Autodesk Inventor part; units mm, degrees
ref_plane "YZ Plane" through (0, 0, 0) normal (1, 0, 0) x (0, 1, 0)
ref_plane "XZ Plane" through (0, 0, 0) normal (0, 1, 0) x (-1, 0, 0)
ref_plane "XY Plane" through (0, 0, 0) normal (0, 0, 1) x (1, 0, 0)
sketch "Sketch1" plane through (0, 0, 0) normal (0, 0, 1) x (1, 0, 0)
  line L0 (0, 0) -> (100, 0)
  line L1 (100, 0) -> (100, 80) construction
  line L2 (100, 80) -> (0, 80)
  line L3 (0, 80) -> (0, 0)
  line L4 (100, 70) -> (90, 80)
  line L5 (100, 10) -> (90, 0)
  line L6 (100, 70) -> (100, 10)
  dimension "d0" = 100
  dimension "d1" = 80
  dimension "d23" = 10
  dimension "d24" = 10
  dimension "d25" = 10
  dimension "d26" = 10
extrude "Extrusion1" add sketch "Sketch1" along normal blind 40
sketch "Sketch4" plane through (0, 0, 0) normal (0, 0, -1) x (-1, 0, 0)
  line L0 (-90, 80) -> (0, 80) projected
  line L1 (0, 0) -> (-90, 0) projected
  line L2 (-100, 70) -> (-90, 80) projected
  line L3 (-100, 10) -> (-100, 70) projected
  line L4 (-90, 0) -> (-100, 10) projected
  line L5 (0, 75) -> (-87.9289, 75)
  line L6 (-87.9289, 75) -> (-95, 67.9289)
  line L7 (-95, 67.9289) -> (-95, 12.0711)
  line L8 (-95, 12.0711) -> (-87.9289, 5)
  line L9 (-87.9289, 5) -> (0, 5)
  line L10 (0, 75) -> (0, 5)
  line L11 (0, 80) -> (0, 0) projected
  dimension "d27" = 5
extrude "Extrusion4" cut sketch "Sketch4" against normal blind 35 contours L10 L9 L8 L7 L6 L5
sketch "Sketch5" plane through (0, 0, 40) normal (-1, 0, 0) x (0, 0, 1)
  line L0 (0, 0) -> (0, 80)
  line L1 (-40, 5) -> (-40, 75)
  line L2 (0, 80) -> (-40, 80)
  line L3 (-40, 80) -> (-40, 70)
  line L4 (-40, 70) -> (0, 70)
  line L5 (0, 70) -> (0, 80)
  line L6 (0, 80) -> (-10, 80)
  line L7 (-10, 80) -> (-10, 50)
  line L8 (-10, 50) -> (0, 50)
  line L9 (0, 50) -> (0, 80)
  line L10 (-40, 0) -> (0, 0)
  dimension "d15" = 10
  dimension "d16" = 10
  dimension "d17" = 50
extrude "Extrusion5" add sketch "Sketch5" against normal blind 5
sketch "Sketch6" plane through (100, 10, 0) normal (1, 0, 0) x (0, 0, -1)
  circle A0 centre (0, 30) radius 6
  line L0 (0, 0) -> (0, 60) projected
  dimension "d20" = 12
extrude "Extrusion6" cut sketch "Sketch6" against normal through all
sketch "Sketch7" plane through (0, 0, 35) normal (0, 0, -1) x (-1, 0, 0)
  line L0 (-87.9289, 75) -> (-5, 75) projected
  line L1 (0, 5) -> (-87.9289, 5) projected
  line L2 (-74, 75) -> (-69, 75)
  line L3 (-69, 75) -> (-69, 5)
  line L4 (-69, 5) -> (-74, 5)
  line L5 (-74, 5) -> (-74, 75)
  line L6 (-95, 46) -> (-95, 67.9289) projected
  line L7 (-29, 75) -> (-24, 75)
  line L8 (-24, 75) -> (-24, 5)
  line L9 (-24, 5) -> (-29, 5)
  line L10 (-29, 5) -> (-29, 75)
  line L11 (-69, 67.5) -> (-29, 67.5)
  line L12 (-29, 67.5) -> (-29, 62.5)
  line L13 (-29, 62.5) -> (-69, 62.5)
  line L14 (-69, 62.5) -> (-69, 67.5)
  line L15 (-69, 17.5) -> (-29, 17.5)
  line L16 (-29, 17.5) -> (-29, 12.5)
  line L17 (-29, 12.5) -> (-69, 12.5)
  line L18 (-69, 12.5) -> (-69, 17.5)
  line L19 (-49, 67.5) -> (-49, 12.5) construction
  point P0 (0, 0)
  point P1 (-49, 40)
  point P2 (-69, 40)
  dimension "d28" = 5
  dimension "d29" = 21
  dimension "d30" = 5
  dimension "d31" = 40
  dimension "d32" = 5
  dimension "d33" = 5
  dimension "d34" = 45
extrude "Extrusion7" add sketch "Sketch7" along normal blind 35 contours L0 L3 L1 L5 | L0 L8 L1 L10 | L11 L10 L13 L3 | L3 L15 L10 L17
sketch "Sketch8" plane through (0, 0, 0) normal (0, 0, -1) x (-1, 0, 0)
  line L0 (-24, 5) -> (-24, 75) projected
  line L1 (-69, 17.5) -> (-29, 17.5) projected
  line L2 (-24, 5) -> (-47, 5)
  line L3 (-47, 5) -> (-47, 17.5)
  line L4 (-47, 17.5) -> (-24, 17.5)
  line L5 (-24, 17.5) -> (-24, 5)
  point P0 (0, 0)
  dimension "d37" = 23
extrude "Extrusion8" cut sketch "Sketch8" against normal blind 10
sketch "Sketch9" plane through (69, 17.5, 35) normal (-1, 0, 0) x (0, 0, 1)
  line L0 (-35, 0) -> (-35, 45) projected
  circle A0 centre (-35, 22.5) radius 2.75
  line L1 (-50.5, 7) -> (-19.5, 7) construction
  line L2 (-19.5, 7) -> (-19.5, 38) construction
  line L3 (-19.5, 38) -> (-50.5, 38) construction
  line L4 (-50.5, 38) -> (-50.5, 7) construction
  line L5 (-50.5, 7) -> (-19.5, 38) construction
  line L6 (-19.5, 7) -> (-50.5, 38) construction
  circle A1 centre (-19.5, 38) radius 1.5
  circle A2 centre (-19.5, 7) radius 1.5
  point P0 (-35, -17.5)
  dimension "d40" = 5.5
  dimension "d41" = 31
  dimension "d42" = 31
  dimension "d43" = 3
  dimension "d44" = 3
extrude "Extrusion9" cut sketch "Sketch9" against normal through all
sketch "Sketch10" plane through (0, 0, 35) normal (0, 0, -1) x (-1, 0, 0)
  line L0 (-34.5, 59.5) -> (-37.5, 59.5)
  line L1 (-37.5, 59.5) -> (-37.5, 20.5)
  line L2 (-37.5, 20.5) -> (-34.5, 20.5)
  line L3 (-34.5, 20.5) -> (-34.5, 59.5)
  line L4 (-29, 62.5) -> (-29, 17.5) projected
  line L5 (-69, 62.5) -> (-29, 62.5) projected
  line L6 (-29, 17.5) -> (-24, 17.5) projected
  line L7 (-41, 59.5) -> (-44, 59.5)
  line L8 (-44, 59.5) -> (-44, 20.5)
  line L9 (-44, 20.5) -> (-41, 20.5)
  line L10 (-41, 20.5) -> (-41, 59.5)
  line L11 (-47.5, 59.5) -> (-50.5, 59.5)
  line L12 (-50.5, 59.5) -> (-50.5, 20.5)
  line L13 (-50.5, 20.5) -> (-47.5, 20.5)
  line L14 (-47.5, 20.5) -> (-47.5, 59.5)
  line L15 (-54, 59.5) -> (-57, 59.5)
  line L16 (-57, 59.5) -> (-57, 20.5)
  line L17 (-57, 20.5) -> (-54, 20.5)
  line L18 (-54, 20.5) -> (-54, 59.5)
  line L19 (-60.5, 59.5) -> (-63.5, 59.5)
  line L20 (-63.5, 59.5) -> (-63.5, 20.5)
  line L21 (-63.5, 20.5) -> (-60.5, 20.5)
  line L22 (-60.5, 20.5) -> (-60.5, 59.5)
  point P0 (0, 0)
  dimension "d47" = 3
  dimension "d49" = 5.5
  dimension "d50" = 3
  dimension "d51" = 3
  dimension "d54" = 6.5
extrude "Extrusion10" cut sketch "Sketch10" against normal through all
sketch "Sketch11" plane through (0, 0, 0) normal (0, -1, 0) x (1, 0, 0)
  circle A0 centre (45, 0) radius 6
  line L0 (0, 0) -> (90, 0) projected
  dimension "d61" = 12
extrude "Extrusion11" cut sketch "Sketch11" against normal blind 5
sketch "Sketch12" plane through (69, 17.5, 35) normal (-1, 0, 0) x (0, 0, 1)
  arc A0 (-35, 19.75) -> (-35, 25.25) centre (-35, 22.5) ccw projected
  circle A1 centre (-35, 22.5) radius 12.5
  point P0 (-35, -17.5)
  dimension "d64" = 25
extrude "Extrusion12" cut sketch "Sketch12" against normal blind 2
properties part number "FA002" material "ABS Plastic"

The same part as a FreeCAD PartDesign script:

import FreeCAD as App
import Part
import Sketcher

V = App.Vector
Q = App.Units.Quantity

doc = App.newDocument("Part")
params = doc.addObject("Spreadsheet::Sheet", "Params")
for row, (alias, value) in enumerate([
    ("sketch1_height", "80 mm"),
    ("pad1_length", "40 mm"),
    ("sketch2_height", "70 mm"),
    ("sketch2_length", "10 mm"),
    ("pocket1_length", "35 mm"),
    ("sketch3_width", "10 mm"),
    ("sketch3_width2", "30 mm"),
    ("pad2_length", "5 mm"),
    ("sketch4_diameter", "12 mm"),
    ("sketch5_width", "5 mm"),
    ("sketch5_width2", "40 mm"),
    ("sketch5_height", "45 mm"),
    ("sketch5_height2", "70 mm"),
    ("pad3_length", "35 mm"),
    ("sketch6_width", "23 mm"),
    ("sketch6_height", "12.5 mm"),
    ("pocket3_length", "10 mm"),
    ("sketch7_diameter", "3 mm"),
    ("sketch7_diameter2", "5.5 mm"),
    ("sketch8_width", "3 mm"),
    ("sketch8_height", "39 mm"),
    ("sketch9_diameter", "12 mm"),
    ("pocket6_length", "5 mm"),
    ("sketch10_diameter", "25 mm"),
    ("pocket7_length", "2 mm"),
], start=1):
    params.set(f"A{row}", alias)
    params.set(f"B{row}", "=" + value)
    params.setAlias(f"B{row}", alias)

body = doc.addObject("PartDesign::Body", "Body")

sketch1 = body.newObject("Sketcher::SketchObject", "Sketch")
sketch1.AttachmentSupport = (doc.getObject("XY_Plane"), [""])
sketch1.MapMode = "FlatFace"
sketch1.addGeometry([
    Part.LineSegment(V(0, 80, 0), V(0, 0, 0)),
    Part.LineSegment(V(0, 0, 0), V(90, 0, 0)),
    Part.LineSegment(V(90, 0, 0), V(100, 10, 0)),
    Part.LineSegment(V(100, 10, 0), V(100, 70, 0)),
    Part.LineSegment(V(100, 70, 0), V(90, 80, 0)),
    Part.LineSegment(V(90, 80, 0), V(0, 80, 0)),
], False)
sketch1.addConstraint([
    Sketcher.Constraint("Coincident", 0, 2, 1, 1),
    Sketcher.Constraint("Coincident", 1, 2, 2, 1),
    Sketcher.Constraint("Coincident", 2, 2, 3, 1),
    Sketcher.Constraint("Coincident", 3, 2, 4, 1),
    Sketcher.Constraint("Coincident", 4, 2, 5, 1),
    Sketcher.Constraint("Coincident", 5, 2, 0, 1),
    Sketcher.Constraint("Vertical", 0),
    Sketcher.Constraint("Horizontal", 1),
    Sketcher.Constraint("Vertical", 3),
    Sketcher.Constraint("Horizontal", 5),
    Sketcher.Constraint("Coincident", 0, 2, -1, 1),
    Sketcher.Constraint("Perpendicular", 2, 4),
    Sketcher.Constraint("Vertical", 1, 2, 4, 2),
    Sketcher.Constraint("Equal", 2, 4),
    Sketcher.Constraint("DistanceY", 0, 2, 0, 1, Q("80 mm")),
    Sketcher.Constraint("DistanceX", -1, 1, 2, 2, Q("100 mm")),
    Sketcher.Constraint("DistanceY", -1, 1, 2, 2, Q("10 mm")),
])
sketch1.setExpression("Constraints[14]", "Params.sketch1_height")
pad1 = body.newObject("PartDesign::Pad", "Pad")
pad1.Profile = sketch1
pad1.setExpression("Length", "Params.pad1_length")

sketch2 = body.newObject("Sketcher::SketchObject", "Sketch001")
sketch2.AttachmentSupport = (doc.getObject("XY_Plane"), [""])
sketch2.MapMode = "FlatFace"
sketch2.addGeometry([
    Part.LineSegment(V(0, 5, 0), V(0, 75, 0)),
    Part.LineSegment(V(0, 75, 0), V(87.9289, 75, 0)),
    Part.LineSegment(V(87.9289, 75, 0), V(95, 67.9289, 0)),
    Part.LineSegment(V(95, 67.9289, 0), V(95, 12.0711, 0)),
    Part.LineSegment(V(95, 12.0711, 0), V(87.9289, 5, 0)),
    Part.LineSegment(V(87.9289, 5, 0), V(0, 5, 0)),
], False)
sketch2.addConstraint([
    Sketcher.Constraint("Coincident", 0, 2, 1, 1),
    Sketcher.Constraint("Coincident", 1, 2, 2, 1),
    Sketcher.Constraint("Coincident", 2, 2, 3, 1),
    Sketcher.Constraint("Coincident", 3, 2, 4, 1),
    Sketcher.Constraint("Coincident", 4, 2, 5, 1),
    Sketcher.Constraint("Coincident", 5, 2, 0, 1),
    Sketcher.Constraint("Vertical", 0),
    Sketcher.Constraint("Horizontal", 1),
    Sketcher.Constraint("Vertical", 3),
    Sketcher.Constraint("Horizontal", 5),
    Sketcher.Constraint("PointOnObject", 0, 2, -2),
    Sketcher.Constraint("Perpendicular", 2, 4),
    Sketcher.Constraint("Vertical", 1, 2, 4, 2),
    Sketcher.Constraint("Equal", 2, 4),
    Sketcher.Constraint("DistanceY", -1, 1, 4, 2, Q("5 mm")),
    Sketcher.Constraint("DistanceY", 0, 1, 0, 2, Q("70 mm")),
    Sketcher.Constraint("Distance", 2, Q("10 mm")),
    Sketcher.Constraint("DistanceX", -1, 1, 2, 2, Q("95 mm")),
])
sketch2.setExpression("Constraints[15]", "Params.sketch2_height")
sketch2.setExpression("Constraints[16]", "Params.sketch2_length")
pocket1 = body.newObject("PartDesign::Pocket", "Pocket")
pocket1.Profile = sketch2
pocket1.setExpression("Length", "Params.pocket1_length")
pocket1.Reversed = True

sketch3 = body.newObject("Sketcher::SketchObject", "Sketch002")
sketch3.AttachmentSupport = (doc.getObject("YZ_Plane"), [""])
sketch3.MapMode = "FlatFace"
sketch3.addGeometry([
    Part.LineSegment(V(50, 30, 0), V(50, 40, 0)),
    Part.LineSegment(V(50, 40, 0), V(80, 40, 0)),
    Part.LineSegment(V(80, 40, 0), V(80, 0, 0)),
    Part.LineSegment(V(80, 0, 0), V(70, 0, 0)),
    Part.LineSegment(V(70, 0, 0), V(70, 30, 0)),
    Part.LineSegment(V(70, 30, 0), V(50, 30, 0)),
], False)
sketch3.addConstraint([
    Sketcher.Constraint("Coincident", 0, 2, 1, 1),
    Sketcher.Constraint("Coincident", 1, 2, 2, 1),
    Sketcher.Constraint("Coincident", 2, 2, 3, 1),
    Sketcher.Constraint("Coincident", 3, 2, 4, 1),
    Sketcher.Constraint("Coincident", 4, 2, 5, 1),
    Sketcher.Constraint("Coincident", 5, 2, 0, 1),
    Sketcher.Constraint("Vertical", 0),
    Sketcher.Constraint("Horizontal", 1),
    Sketcher.Constraint("Vertical", 2),
    Sketcher.Constraint("Horizontal", 3),
    Sketcher.Constraint("Vertical", 4),
    Sketcher.Constraint("Horizontal", 5),
    Sketcher.Constraint("PointOnObject", 2, 2, -1),
    Sketcher.Constraint("Equal", 3, 0),
    Sketcher.Constraint("Equal", 1, 4),
    Sketcher.Constraint("DistanceX", 3, 2, 3, 1, Q("10 mm")),
    Sketcher.Constraint("DistanceX", -1, 1, 0, 2, Q("50 mm")),
    Sketcher.Constraint("DistanceX", 1, 1, 1, 2, Q("30 mm")),
])
sketch3.setExpression("Constraints[15]", "Params.sketch3_width")
sketch3.setExpression("Constraints[17]", "Params.sketch3_width2")
pad2 = body.newObject("PartDesign::Pad", "Pad001")
pad2.Profile = sketch3
pad2.setExpression("Length", "Params.pad2_length")

sketch4 = body.newObject("Sketcher::SketchObject", "Sketch003")
sketch4.AttachmentSupport = (doc.getObject("YZ_Plane"), [""])
sketch4.MapMode = "FlatFace"
sketch4.AttachmentOffset = App.Placement(V(0, 0, 100), App.Rotation())
sketch4.addGeometry(Part.Circle(V(40, 0, 0), V(0, 0, 1), 6), False)
sketch4.addConstraint([
    Sketcher.Constraint("PointOnObject", 0, 3, -1),
    Sketcher.Constraint("Diameter", 0, Q("12 mm")),
    Sketcher.Constraint("DistanceX", -1, 1, 0, 3, Q("40 mm")),
])
sketch4.setExpression("Constraints[1]", "Params.sketch4_diameter")
pocket2 = body.newObject("PartDesign::Pocket", "Pocket001")
pocket2.Profile = sketch4
pocket2.Type = "ThroughAll"

sketch5 = body.newObject("Sketcher::SketchObject", "Sketch004")
sketch5.AttachmentSupport = (doc.getObject("XY_Plane"), [""])
sketch5.MapMode = "FlatFace"
sketch5.AttachmentOffset = App.Placement(V(0, 0, 35), App.Rotation())
sketch5.addGeometry([
    Part.LineSegment(V(69, 75, 0), V(74, 75, 0)),
    Part.LineSegment(V(74, 75, 0), V(74, 5, 0)),
    Part.LineSegment(V(74, 5, 0), V(69, 5, 0)),
    Part.LineSegment(V(69, 5, 0), V(69, 12.5, 0)),
    Part.LineSegment(V(69, 12.5, 0), V(29, 12.5, 0)),
    Part.LineSegment(V(29, 12.5, 0), V(29, 5, 0)),
    Part.LineSegment(V(29, 5, 0), V(24, 5, 0)),
    Part.LineSegment(V(24, 5, 0), V(24, 75, 0)),
    Part.LineSegment(V(24, 75, 0), V(29, 75, 0)),
    Part.LineSegment(V(29, 75, 0), V(29, 67.5, 0)),
    Part.LineSegment(V(29, 67.5, 0), V(69, 67.5, 0)),
    Part.LineSegment(V(69, 67.5, 0), V(69, 75, 0)),
    Part.LineSegment(V(69, 17.5, 0), V(69, 62.5, 0)),
    Part.LineSegment(V(69, 62.5, 0), V(29, 62.5, 0)),
    Part.LineSegment(V(29, 62.5, 0), V(29, 17.5, 0)),
    Part.LineSegment(V(29, 17.5, 0), V(69, 17.5, 0)),
], False)
sketch5.addConstraint([
    Sketcher.Constraint("Coincident", 0, 2, 1, 1),
    Sketcher.Constraint("Coincident", 1, 2, 2, 1),
    Sketcher.Constraint("Coincident", 2, 2, 3, 1),
    Sketcher.Constraint("Coincident", 3, 2, 4, 1),
    Sketcher.Constraint("Coincident", 4, 2, 5, 1),
    Sketcher.Constraint("Coincident", 5, 2, 6, 1),
    Sketcher.Constraint("Coincident", 6, 2, 7, 1),
    Sketcher.Constraint("Coincident", 7, 2, 8, 1),
    Sketcher.Constraint("Coincident", 8, 2, 9, 1),
    Sketcher.Constraint("Coincident", 9, 2, 10, 1),
    Sketcher.Constraint("Coincident", 10, 2, 11, 1),
    Sketcher.Constraint("Coincident", 11, 2, 0, 1),
    Sketcher.Constraint("Coincident", 12, 2, 13, 1),
    Sketcher.Constraint("Coincident", 13, 2, 14, 1),
    Sketcher.Constraint("Coincident", 14, 2, 15, 1),
    Sketcher.Constraint("Coincident", 15, 2, 12, 1),
    Sketcher.Constraint("Horizontal", 0),
    Sketcher.Constraint("Vertical", 1),
    Sketcher.Constraint("Horizontal", 2),
    Sketcher.Constraint("Vertical", 3),
    Sketcher.Constraint("Horizontal", 4),
    Sketcher.Constraint("Vertical", 5),
    Sketcher.Constraint("Horizontal", 6),
    Sketcher.Constraint("Vertical", 7),
    Sketcher.Constraint("Horizontal", 8),
    Sketcher.Constraint("Vertical", 9),
    Sketcher.Constraint("Horizontal", 10),
    Sketcher.Constraint("Vertical", 11),
    Sketcher.Constraint("Vertical", 12),
    Sketcher.Constraint("Horizontal", 13),
    Sketcher.Constraint("Vertical", 14),
    Sketcher.Constraint("Horizontal", 15),
    Sketcher.Constraint("Horizontal", 2, 2, 5, 2),
    Sketcher.Constraint("Horizontal", 0, 2, 7, 2),
    Sketcher.Constraint("Vertical", 5, 2, 8, 2),
    Sketcher.Constraint("Vertical", 3, 2, 10, 2),
    Sketcher.Constraint("Vertical", 11, 2, 12, 2),
    Sketcher.Constraint("Vertical", 9, 2, 13, 2),
    Sketcher.Constraint("Equal", 2, 6),
    Sketcher.Constraint("Equal", 5, 9),
    Sketcher.Constraint("DistanceX", 0, 1, 0, 2, Q("5 mm")),
    Sketcher.Constraint("DistanceX", 4, 2, 4, 1, Q("40 mm")),
    Sketcher.Constraint("DistanceY", 12, 1, 12, 2, Q("45 mm")),
    Sketcher.Constraint("DistanceY", -1, 1, 1, 2, Q("5 mm")),
    Sketcher.Constraint("DistanceY", 12, 2, 10, 2, Q("5 mm")),
    Sketcher.Constraint("DistanceY", 4, 2, 14, 2, Q("5 mm")),
    Sketcher.Constraint("DistanceY", 1, 2, 1, 1, Q("70 mm")),
    Sketcher.Constraint("DistanceX", -1, 1, 0, 2, Q("74 mm")),
])
sketch5.setExpression("Constraints[40]", "Params.sketch5_width")
sketch5.setExpression("Constraints[41]", "Params.sketch5_width2")
sketch5.setExpression("Constraints[42]", "Params.sketch5_height")
sketch5.setExpression("Constraints[46]", "Params.sketch5_height2")
pad3 = body.newObject("PartDesign::Pad", "Pad002")
pad3.Profile = sketch5
pad3.setExpression("Length", "Params.pad3_length")
pad3.Reversed = True

sketch6 = body.newObject("Sketcher::SketchObject", "Sketch005")
sketch6.AttachmentSupport = (doc.getObject("XY_Plane"), [""])
sketch6.MapMode = "FlatFace"
sketch6.addGeometry([
    Part.LineSegment(V(47, 5, 0), V(24, 5, 0)),
    Part.LineSegment(V(24, 5, 0), V(24, 17.5, 0)),
    Part.LineSegment(V(24, 17.5, 0), V(47, 17.5, 0)),
    Part.LineSegment(V(47, 17.5, 0), V(47, 5, 0)),
], False)
sketch6.addConstraint([
    Sketcher.Constraint("Coincident", 0, 2, 1, 1),
    Sketcher.Constraint("Coincident", 1, 2, 2, 1),
    Sketcher.Constraint("Coincident", 2, 2, 3, 1),
    Sketcher.Constraint("Coincident", 3, 2, 0, 1),
    Sketcher.Constraint("Horizontal", 0),
    Sketcher.Constraint("Vertical", 1),
    Sketcher.Constraint("Horizontal", 2),
    Sketcher.Constraint("Vertical", 3),
    Sketcher.Constraint("DistanceX", 0, 2, 0, 1, Q("23 mm")),
    Sketcher.Constraint("DistanceY", 1, 1, 1, 2, Q("12.5 mm")),
    Sketcher.Constraint("DistanceX", -1, 1, 0, 2, Q("24 mm")),
    Sketcher.Constraint("DistanceY", -1, 1, 0, 2, Q("5 mm")),
])
sketch6.setExpression("Constraints[8]", "Params.sketch6_width")
sketch6.setExpression("Constraints[9]", "Params.sketch6_height")
pocket3 = body.newObject("PartDesign::Pocket", "Pocket002")
pocket3.Profile = sketch6
pocket3.setExpression("Length", "Params.pocket3_length")
pocket3.Reversed = True

sketch7 = body.newObject("Sketcher::SketchObject", "Sketch006")
sketch7.AttachmentSupport = (doc.getObject("YZ_Plane"), [""])
sketch7.MapMode = "FlatFace"
sketch7.AttachmentOffset = App.Placement(V(0, 0, 69), App.Rotation())
sketch7.addGeometry([
    Part.Circle(V(40, 0, 0), V(0, 0, 1), 2.75),
    Part.Circle(V(55.5, 15.5, 0), V(0, 0, 1), 1.5),
    Part.Circle(V(24.5, 15.5, 0), V(0, 0, 1), 1.5),
], False)
sketch7.addConstraint([
    Sketcher.Constraint("Equal", 1, 2),
    Sketcher.Constraint("PointOnObject", 0, 3, -1),
    Sketcher.Constraint("Horizontal", 1, 3, 2, 3),
    Sketcher.Constraint("Diameter", 1, Q("3 mm")),
    Sketcher.Constraint("Diameter", 0, Q("5.5 mm")),
    Sketcher.Constraint("DistanceX", 2, 3, 1, 3, Q("31 mm")),
    Sketcher.Constraint("DistanceX", -1, 1, 0, 3, Q("40 mm")),
    Sketcher.Constraint("DistanceX", -1, 1, 1, 3, Q("55.5 mm")),
    Sketcher.Constraint("DistanceY", -1, 1, 1, 3, Q("15.5 mm")),
])
sketch7.setExpression("Constraints[3]", "Params.sketch7_diameter")
sketch7.setExpression("Constraints[4]", "Params.sketch7_diameter2")
pocket4 = body.newObject("PartDesign::Pocket", "Pocket003")
pocket4.Profile = sketch7
pocket4.Type = "ThroughAll"
pocket4.Reversed = True

sketch8 = body.newObject("Sketcher::SketchObject", "Sketch007")
sketch8.AttachmentSupport = (doc.getObject("XY_Plane"), [""])
sketch8.MapMode = "FlatFace"
sketch8.AttachmentOffset = App.Placement(V(0, 0, 35), App.Rotation())
sketch8.addGeometry([
    Part.LineSegment(V(34.5, 20.5, 0), V(34.5, 59.5, 0)),
    Part.LineSegment(V(34.5, 59.5, 0), V(37.5, 59.5, 0)),
    Part.LineSegment(V(37.5, 59.5, 0), V(37.5, 20.5, 0)),
    Part.LineSegment(V(37.5, 20.5, 0), V(34.5, 20.5, 0)),
    Part.LineSegment(V(41, 20.5, 0), V(41, 59.5, 0)),
    Part.LineSegment(V(41, 59.5, 0), V(44, 59.5, 0)),
    Part.LineSegment(V(44, 59.5, 0), V(44, 20.5, 0)),
    Part.LineSegment(V(44, 20.5, 0), V(41, 20.5, 0)),
    Part.LineSegment(V(47.5, 20.5, 0), V(47.5, 59.5, 0)),
    Part.LineSegment(V(47.5, 59.5, 0), V(50.5, 59.5, 0)),
    Part.LineSegment(V(50.5, 59.5, 0), V(50.5, 20.5, 0)),
    Part.LineSegment(V(50.5, 20.5, 0), V(47.5, 20.5, 0)),
    Part.LineSegment(V(54, 20.5, 0), V(54, 59.5, 0)),
    Part.LineSegment(V(54, 59.5, 0), V(57, 59.5, 0)),
    Part.LineSegment(V(57, 59.5, 0), V(57, 20.5, 0)),
    Part.LineSegment(V(57, 20.5, 0), V(54, 20.5, 0)),
    Part.LineSegment(V(60.5, 20.5, 0), V(60.5, 59.5, 0)),
    Part.LineSegment(V(60.5, 59.5, 0), V(63.5, 59.5, 0)),
    Part.LineSegment(V(63.5, 59.5, 0), V(63.5, 20.5, 0)),
    Part.LineSegment(V(63.5, 20.5, 0), V(60.5, 20.5, 0)),
], False)
sketch8.addConstraint([
    Sketcher.Constraint("Coincident", 0, 2, 1, 1),
    Sketcher.Constraint("Coincident", 1, 2, 2, 1),
    Sketcher.Constraint("Coincident", 2, 2, 3, 1),
    Sketcher.Constraint("Coincident", 3, 2, 0, 1),
    Sketcher.Constraint("Coincident", 4, 2, 5, 1),
    Sketcher.Constraint("Coincident", 5, 2, 6, 1),
    Sketcher.Constraint("Coincident", 6, 2, 7, 1),
    Sketcher.Constraint("Coincident", 7, 2, 4, 1),
    Sketcher.Constraint("Coincident", 8, 2, 9, 1),
    Sketcher.Constraint("Coincident", 9, 2, 10, 1),
    Sketcher.Constraint("Coincident", 10, 2, 11, 1),
    Sketcher.Constraint("Coincident", 11, 2, 8, 1),
    Sketcher.Constraint("Coincident", 12, 2, 13, 1),
    Sketcher.Constraint("Coincident", 13, 2, 14, 1),
    Sketcher.Constraint("Coincident", 14, 2, 15, 1),
    Sketcher.Constraint("Coincident", 15, 2, 12, 1),
    Sketcher.Constraint("Coincident", 16, 2, 17, 1),
    Sketcher.Constraint("Coincident", 17, 2, 18, 1),
    Sketcher.Constraint("Coincident", 18, 2, 19, 1),
    Sketcher.Constraint("Coincident", 19, 2, 16, 1),
    Sketcher.Constraint("Vertical", 0),
    Sketcher.Constraint("Horizontal", 1),
    Sketcher.Constraint("Vertical", 2),
    Sketcher.Constraint("Horizontal", 3),
    Sketcher.Constraint("Vertical", 4),
    Sketcher.Constraint("Horizontal", 5),
    Sketcher.Constraint("Vertical", 6),
    Sketcher.Constraint("Horizontal", 7),
    Sketcher.Constraint("Vertical", 8),
    Sketcher.Constraint("Horizontal", 9),
    Sketcher.Constraint("Vertical", 10),
    Sketcher.Constraint("Horizontal", 11),
    Sketcher.Constraint("Vertical", 12),
    Sketcher.Constraint("Horizontal", 13),
    Sketcher.Constraint("Vertical", 14),
    Sketcher.Constraint("Horizontal", 15),
    Sketcher.Constraint("Vertical", 16),
    Sketcher.Constraint("Horizontal", 17),
    Sketcher.Constraint("Vertical", 18),
    Sketcher.Constraint("Horizontal", 19),
    Sketcher.Constraint("Horizontal", 1, 2, 4, 2),
    Sketcher.Constraint("Horizontal", 3, 2, 6, 2),
    Sketcher.Constraint("Horizontal", 5, 2, 8, 2),
    Sketcher.Constraint("Horizontal", 7, 2, 10, 2),
    Sketcher.Constraint("Horizontal", 9, 2, 12, 2),
    Sketcher.Constraint("Horizontal", 11, 2, 14, 2),
    Sketcher.Constraint("Horizontal", 13, 2, 16, 2),
    Sketcher.Constraint("Horizontal", 15, 2, 18, 2),
    Sketcher.Constraint("Equal", 3, 5),
    Sketcher.Constraint("Equal", 7, 9),
    Sketcher.Constraint("Equal", 11, 13),
    Sketcher.Constraint("Equal", 15, 17),
    Sketcher.Constraint("DistanceX", 1, 1, 1, 2, Q("3 mm")),
    Sketcher.Constraint("DistanceX", 1, 2, 8, 2, Q("10 mm")),
    Sketcher.Constraint("DistanceX", 5, 2, 12, 2, Q("10 mm")),
    Sketcher.Constraint("DistanceX", 9, 2, 16, 2, Q("10 mm")),
    Sketcher.Constraint("DistanceX", 0, 2, 4, 2, Q("6.5 mm")),
    Sketcher.Constraint("DistanceY", 0, 1, 0, 2, Q("39 mm")),
    Sketcher.Constraint("DistanceX", -1, 1, 4, 2, Q("41 mm")),
    Sketcher.Constraint("DistanceY", -1, 1, 0, 2, Q("59.5 mm")),
])
sketch8.setExpression("Constraints[52]", "Params.sketch8_width")
sketch8.setExpression("Constraints[57]", "Params.sketch8_height")
pocket5 = body.newObject("PartDesign::Pocket", "Pocket004")
pocket5.Profile = sketch8
pocket5.Type = "ThroughAll"
pocket5.Reversed = True

sketch9 = body.newObject("Sketcher::SketchObject", "Sketch008")
sketch9.AttachmentSupport = (doc.getObject("XZ_Plane"), [""])
sketch9.MapMode = "FlatFace"
sketch9.addGeometry(Part.Circle(V(45, 0, 0), V(0, 0, 1), 6), False)
sketch9.addConstraint([
    Sketcher.Constraint("PointOnObject", 0, 3, -1),
    Sketcher.Constraint("Diameter", 0, Q("12 mm")),
    Sketcher.Constraint("DistanceX", -1, 1, 0, 3, Q("45 mm")),
])
sketch9.setExpression("Constraints[1]", "Params.sketch9_diameter")
pocket6 = body.newObject("PartDesign::Pocket", "Pocket005")
pocket6.Profile = sketch9
pocket6.setExpression("Length", "Params.pocket6_length")

sketch10 = body.newObject("Sketcher::SketchObject", "Sketch009")
sketch10.AttachmentSupport = (doc.getObject("YZ_Plane"), [""])
sketch10.MapMode = "FlatFace"
sketch10.AttachmentOffset = App.Placement(V(0, 0, 69), App.Rotation())
sketch10.addGeometry(Part.Circle(V(40, 0, 0), V(0, 0, 1), 12.5), False)
sketch10.addConstraint([
    Sketcher.Constraint("PointOnObject", 0, 3, -1),
    Sketcher.Constraint("Diameter", 0, Q("25 mm")),
    Sketcher.Constraint("DistanceX", -1, 1, 0, 3, Q("40 mm")),
])
sketch10.setExpression("Constraints[1]", "Params.sketch10_diameter")
pocket7 = body.newObject("PartDesign::Pocket", "Pocket006")
pocket7.Profile = sketch10
pocket7.setExpression("Length", "Params.pocket7_length")
pocket7.Reversed = True

doc.recompute()
